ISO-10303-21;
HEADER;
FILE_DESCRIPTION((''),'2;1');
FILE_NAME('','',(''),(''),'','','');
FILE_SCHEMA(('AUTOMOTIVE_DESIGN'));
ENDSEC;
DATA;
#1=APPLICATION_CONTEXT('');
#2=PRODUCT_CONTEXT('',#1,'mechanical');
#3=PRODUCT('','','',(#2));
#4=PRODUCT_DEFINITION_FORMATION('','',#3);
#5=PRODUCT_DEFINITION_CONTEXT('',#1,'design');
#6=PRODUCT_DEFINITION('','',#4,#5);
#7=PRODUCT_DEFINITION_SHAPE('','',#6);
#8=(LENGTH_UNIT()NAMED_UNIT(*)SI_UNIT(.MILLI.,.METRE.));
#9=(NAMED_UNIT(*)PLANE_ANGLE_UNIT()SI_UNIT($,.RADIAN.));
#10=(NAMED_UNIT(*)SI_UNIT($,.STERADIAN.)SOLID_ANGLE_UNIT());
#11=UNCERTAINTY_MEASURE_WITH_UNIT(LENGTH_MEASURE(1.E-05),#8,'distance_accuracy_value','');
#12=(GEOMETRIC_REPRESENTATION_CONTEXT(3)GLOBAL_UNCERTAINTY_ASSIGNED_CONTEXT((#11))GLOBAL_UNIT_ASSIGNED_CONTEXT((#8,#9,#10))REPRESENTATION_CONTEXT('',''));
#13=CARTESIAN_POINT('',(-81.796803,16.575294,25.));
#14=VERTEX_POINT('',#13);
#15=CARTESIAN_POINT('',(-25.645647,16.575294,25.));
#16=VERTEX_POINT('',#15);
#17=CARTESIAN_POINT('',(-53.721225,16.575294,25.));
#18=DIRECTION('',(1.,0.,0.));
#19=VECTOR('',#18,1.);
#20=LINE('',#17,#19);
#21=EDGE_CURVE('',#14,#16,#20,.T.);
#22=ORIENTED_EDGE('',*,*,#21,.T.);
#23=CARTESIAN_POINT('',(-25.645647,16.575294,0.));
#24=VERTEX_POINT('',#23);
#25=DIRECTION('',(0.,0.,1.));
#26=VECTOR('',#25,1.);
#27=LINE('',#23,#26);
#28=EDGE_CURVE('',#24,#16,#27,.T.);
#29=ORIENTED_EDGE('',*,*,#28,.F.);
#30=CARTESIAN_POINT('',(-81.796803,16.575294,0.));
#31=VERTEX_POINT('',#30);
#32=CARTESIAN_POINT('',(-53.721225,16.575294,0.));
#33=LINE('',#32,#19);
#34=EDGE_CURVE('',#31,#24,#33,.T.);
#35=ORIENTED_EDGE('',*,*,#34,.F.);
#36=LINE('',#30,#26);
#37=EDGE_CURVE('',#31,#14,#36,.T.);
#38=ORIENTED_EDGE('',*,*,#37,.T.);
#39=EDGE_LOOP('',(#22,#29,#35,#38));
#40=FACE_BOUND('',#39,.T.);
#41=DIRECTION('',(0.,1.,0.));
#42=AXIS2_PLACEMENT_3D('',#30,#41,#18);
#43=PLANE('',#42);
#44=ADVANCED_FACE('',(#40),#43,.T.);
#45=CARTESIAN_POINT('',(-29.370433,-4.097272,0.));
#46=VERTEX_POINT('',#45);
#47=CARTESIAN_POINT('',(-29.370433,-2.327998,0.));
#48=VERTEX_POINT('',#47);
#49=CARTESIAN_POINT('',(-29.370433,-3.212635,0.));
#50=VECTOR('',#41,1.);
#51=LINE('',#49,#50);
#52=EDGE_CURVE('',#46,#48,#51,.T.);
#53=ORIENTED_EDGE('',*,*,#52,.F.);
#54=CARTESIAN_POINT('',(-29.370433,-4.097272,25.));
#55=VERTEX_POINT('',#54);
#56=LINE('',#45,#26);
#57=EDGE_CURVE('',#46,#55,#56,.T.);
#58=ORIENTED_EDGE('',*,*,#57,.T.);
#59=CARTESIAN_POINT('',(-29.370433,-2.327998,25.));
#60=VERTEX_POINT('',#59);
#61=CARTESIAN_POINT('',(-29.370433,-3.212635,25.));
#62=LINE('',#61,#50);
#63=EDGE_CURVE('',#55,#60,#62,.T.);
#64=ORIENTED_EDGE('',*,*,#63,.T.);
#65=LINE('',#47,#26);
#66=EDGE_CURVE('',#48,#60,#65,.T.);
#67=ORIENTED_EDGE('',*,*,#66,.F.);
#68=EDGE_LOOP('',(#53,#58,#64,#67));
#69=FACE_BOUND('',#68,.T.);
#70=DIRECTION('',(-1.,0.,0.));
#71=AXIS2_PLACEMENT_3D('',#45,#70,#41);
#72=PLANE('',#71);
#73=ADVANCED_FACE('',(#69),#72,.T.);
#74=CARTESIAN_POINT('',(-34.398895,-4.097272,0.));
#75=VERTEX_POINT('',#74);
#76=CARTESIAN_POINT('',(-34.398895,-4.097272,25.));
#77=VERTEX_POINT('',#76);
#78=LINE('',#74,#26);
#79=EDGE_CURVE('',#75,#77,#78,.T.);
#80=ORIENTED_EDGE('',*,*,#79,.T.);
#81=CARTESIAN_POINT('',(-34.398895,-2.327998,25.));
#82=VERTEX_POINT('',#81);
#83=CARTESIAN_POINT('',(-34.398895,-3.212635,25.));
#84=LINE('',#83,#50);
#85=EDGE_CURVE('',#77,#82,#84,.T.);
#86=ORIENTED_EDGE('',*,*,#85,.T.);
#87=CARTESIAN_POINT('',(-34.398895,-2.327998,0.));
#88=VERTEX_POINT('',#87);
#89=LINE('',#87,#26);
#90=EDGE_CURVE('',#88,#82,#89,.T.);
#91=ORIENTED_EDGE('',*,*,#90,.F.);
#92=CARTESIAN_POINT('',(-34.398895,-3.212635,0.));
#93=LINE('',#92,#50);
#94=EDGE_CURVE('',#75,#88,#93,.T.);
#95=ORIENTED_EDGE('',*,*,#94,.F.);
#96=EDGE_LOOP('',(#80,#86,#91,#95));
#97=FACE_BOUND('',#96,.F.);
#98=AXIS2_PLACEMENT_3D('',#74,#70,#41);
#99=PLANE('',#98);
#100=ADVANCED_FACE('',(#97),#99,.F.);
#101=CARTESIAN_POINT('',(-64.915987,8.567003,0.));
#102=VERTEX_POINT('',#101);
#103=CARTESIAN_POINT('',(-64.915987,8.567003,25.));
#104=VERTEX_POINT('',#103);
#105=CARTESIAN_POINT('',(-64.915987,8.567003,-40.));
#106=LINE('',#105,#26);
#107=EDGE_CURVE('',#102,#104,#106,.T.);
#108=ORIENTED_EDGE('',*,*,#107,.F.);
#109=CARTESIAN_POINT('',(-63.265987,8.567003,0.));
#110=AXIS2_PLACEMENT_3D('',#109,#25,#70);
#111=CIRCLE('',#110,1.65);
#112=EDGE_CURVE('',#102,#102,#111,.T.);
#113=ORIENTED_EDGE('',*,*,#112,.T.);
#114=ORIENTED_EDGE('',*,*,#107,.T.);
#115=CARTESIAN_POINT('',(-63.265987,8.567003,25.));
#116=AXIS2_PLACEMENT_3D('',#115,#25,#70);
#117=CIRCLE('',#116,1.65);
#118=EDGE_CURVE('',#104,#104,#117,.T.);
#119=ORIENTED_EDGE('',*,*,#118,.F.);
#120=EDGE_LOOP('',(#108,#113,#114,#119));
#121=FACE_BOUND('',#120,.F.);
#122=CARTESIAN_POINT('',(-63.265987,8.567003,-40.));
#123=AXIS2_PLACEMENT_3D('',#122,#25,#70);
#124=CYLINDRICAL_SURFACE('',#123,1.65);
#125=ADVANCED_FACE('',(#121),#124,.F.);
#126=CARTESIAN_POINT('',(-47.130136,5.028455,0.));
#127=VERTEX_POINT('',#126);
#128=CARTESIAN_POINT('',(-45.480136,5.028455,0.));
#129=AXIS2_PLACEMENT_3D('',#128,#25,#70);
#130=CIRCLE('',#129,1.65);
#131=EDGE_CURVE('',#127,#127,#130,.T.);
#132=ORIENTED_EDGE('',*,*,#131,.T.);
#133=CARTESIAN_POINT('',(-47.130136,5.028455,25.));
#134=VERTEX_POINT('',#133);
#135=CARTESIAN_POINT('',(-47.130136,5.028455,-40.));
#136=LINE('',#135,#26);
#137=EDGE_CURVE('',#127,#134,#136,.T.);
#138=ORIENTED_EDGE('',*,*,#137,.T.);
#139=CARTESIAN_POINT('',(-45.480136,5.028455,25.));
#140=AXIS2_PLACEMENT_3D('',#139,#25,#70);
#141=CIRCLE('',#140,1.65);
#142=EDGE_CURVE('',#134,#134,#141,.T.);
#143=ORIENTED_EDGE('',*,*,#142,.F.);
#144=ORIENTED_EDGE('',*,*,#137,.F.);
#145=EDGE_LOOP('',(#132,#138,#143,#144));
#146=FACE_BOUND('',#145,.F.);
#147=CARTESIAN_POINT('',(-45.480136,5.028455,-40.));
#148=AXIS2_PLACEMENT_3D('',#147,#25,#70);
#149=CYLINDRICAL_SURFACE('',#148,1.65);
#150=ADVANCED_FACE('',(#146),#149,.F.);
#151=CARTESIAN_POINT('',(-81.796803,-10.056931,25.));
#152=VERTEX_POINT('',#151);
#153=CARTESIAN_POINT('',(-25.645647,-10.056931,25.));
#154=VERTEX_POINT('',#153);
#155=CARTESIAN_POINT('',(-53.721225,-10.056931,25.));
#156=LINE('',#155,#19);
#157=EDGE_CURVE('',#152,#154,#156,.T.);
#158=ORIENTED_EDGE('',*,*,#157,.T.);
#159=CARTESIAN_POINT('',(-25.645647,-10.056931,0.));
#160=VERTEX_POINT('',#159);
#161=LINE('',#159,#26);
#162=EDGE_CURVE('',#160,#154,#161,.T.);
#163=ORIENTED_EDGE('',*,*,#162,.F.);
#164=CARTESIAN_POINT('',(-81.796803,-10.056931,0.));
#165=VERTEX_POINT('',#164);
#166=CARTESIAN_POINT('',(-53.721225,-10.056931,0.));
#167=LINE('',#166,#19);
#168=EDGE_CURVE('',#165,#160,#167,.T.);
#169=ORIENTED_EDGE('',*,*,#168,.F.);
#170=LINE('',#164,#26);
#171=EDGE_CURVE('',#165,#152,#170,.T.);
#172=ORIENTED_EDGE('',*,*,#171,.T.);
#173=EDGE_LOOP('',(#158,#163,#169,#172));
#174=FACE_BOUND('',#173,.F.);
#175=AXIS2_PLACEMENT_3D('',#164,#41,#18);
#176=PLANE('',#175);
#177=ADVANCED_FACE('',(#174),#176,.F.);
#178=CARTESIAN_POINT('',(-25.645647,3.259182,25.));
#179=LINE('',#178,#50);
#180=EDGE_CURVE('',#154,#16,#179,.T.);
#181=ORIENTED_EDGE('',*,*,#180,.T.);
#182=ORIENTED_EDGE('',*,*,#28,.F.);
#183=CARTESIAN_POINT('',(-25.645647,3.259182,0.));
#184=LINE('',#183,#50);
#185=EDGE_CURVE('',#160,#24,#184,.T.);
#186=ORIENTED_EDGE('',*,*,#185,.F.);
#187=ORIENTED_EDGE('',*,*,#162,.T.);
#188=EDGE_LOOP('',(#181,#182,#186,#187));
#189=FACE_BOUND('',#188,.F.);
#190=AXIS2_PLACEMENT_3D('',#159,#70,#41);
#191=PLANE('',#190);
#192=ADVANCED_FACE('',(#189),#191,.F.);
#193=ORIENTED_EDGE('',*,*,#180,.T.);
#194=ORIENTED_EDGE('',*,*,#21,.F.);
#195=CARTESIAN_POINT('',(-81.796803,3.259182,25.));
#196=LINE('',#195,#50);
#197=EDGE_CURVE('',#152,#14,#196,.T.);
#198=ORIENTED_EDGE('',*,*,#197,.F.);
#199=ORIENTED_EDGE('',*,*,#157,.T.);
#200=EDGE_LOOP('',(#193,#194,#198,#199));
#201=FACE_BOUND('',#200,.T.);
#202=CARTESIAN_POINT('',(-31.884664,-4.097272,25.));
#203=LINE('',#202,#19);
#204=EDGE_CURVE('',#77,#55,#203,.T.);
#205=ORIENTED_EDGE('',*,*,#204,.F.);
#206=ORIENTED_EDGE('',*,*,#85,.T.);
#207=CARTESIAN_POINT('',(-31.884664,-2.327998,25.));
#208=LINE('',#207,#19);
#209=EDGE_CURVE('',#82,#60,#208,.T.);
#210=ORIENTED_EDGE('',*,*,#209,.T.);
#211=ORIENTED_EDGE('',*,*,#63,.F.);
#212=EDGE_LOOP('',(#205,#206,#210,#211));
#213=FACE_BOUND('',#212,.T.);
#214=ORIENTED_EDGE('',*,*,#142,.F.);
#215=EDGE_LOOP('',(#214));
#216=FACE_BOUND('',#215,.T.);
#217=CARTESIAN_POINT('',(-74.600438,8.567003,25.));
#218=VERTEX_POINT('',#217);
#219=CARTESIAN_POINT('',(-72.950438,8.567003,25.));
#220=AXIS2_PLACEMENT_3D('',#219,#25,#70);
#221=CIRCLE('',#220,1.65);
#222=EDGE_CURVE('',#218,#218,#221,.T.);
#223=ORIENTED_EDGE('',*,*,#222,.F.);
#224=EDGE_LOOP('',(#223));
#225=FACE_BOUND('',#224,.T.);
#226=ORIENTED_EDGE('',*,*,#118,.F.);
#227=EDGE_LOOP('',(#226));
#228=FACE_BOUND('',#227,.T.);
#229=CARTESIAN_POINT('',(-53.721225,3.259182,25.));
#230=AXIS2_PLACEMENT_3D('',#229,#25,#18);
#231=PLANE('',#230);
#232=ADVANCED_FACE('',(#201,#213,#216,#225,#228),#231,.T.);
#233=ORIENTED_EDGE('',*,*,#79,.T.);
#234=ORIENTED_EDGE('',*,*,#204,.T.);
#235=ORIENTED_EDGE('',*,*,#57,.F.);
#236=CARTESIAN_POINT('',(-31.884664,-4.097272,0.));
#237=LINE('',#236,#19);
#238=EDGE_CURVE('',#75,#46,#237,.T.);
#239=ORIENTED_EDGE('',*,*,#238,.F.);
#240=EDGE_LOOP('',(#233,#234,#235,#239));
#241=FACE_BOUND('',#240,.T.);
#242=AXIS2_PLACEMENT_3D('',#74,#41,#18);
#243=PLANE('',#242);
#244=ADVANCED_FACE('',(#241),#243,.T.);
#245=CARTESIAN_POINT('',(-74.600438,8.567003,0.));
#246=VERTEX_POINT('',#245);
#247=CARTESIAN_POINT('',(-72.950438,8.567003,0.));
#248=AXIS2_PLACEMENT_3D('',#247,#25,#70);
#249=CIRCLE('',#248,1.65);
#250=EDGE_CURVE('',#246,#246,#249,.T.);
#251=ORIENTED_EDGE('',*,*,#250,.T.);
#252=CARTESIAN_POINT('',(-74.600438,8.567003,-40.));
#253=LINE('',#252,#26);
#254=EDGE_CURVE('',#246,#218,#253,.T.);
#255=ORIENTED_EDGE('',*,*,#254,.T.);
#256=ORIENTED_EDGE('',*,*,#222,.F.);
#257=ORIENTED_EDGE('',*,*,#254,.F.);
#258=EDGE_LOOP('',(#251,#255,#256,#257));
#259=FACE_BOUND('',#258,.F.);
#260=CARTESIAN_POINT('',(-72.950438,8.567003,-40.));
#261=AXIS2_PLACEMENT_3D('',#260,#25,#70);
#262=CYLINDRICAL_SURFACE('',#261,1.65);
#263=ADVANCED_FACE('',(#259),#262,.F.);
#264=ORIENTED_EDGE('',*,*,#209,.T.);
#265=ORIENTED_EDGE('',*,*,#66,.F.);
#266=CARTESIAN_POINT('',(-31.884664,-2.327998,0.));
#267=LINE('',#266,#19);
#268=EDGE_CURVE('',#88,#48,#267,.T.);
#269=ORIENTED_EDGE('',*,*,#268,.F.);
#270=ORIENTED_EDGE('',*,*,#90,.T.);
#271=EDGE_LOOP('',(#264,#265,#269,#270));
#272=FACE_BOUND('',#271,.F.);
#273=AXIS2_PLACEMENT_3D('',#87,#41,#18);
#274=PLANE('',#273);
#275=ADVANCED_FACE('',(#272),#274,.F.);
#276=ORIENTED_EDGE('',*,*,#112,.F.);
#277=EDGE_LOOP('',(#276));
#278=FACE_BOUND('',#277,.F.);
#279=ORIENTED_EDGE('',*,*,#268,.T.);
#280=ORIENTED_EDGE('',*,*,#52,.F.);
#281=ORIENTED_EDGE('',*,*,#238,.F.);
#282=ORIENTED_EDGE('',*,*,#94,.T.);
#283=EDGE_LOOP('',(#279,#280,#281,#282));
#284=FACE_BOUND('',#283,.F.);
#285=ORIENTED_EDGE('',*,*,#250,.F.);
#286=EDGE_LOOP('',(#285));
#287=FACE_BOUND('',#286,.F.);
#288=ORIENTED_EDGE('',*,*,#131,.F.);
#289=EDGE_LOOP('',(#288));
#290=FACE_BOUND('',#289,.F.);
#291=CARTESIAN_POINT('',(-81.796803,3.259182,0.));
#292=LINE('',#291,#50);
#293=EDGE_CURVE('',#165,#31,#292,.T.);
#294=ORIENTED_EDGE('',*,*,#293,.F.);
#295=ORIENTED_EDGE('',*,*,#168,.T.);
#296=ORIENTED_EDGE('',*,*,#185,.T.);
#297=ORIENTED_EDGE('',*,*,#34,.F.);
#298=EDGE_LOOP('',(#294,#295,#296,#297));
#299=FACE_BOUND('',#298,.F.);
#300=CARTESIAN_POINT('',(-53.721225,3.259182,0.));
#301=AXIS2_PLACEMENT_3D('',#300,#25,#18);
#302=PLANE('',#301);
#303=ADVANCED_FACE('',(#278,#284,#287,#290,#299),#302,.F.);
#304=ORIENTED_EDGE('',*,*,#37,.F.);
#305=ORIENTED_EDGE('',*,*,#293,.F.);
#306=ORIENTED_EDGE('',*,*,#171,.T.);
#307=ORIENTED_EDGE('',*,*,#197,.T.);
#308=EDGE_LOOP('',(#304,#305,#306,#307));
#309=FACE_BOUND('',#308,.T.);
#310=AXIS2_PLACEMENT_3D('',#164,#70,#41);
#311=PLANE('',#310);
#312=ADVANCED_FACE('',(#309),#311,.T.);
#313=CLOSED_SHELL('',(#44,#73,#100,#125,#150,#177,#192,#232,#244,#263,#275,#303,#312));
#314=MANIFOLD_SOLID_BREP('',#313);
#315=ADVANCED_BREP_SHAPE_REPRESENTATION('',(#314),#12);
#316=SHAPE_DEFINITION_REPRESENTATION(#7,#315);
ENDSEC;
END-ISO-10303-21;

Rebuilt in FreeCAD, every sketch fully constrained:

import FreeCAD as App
import Part
import Sketcher
from FreeCAD import Vector
Q = App.Units.Quantity


def add_polygon(sketch, points):
    """Adds a closed chain of lines whose ends are joined by coincident constraints."""
    first, n = sketch.GeometryCount, len(points)
    for a, b in zip(points, points[1:] + points[:1]):
        sketch.addGeometry(Part.LineSegment(App.Vector(*a, 0), App.Vector(*b, 0)), False)
    for i in range(n):
        sketch.addConstraint(Sketcher.Constraint("Coincident", first + i, 2, first + (i + 1) % n, 1))

doc = App.newDocument("Part")
body = doc.addObject("PartDesign::Body", "Body")

sketch1 = body.newObject("Sketcher::SketchObject", "Sketch")
sketch1.AttachmentSupport = (doc.getObject("XY_Plane"), [""])
sketch1.MapMode = "FlatFace"
add_polygon(sketch1, [(-81.796803, 16.575294), (-81.796803, -10.056931), (-25.645647, -10.056931), (-25.645647, 16.575294)])
add_polygon(sketch1, [(-29.370433, -4.097272), (-34.398895, -4.097272), (-34.398895, -2.327998), (-29.370433, -2.327998)])
sketch1.addConstraint([
    Sketcher.Constraint("Vertical", 0),
    Sketcher.Constraint("Horizontal", 1),
    Sketcher.Constraint("Vertical", 2),
    Sketcher.Constraint("Horizontal", 3),
    Sketcher.Constraint("Horizontal", 4),
    Sketcher.Constraint("Vertical", 5),
    Sketcher.Constraint("Horizontal", 6),
    Sketcher.Constraint("Vertical", 7),
    Sketcher.Constraint("DistanceX", 1, 1, 1, 2, Q("56.151155 mm")),
    Sketcher.Constraint("DistanceX", 4, 2, 4, 1, Q("5.028462 mm")),
    Sketcher.Constraint("DistanceY", 0, 2, 0, 1, Q("26.632224 mm")),
    Sketcher.Constraint("DistanceY", 5, 1, 5, 2, Q("1.769274 mm")),
    Sketcher.Constraint("DistanceY", 0, 2, -1, 1, Q("10.056931 mm")),
    Sketcher.Constraint("DistanceY", 1, 2, 4, 2, Q("5.959658 mm")),
    Sketcher.Constraint("DistanceX", 0, 2, 6, 2, Q("52.42637 mm")),
    Sketcher.Constraint("DistanceX", 0, 2, -1, 1, Q("81.796803 mm")),
])
pad1 = body.newObject("PartDesign::Pad", "Pad")
pad1.Profile = sketch1
pad1.Length = 25

sketch2 = body.newObject("Sketcher::SketchObject", "Sketch001")
sketch2.AttachmentSupport = (doc.getObject("XY_Plane"), [""])
sketch2.MapMode = "FlatFace"
sketch2.addGeometry([
    Part.Circle(Vector(-72.950438, 8.567003, 0), Vector(0, 0, 1), 1.65),
    Part.Circle(Vector(-63.265987, 8.567003, 0), Vector(0, 0, 1), 1.65),
    Part.Circle(Vector(-45.480136, 5.028455, 0), Vector(0, 0, 1), 1.65),
], False)
sketch2.addConstraint([
    Sketcher.Constraint("Equal", 0, 1),
    Sketcher.Constraint("Equal", 1, 2),
    Sketcher.Constraint("Horizontal", 0, 3, 1, 3),
    Sketcher.Constraint("Diameter", 0, Q("3.3 mm")),
    Sketcher.Constraint("DistanceX", 0, 3, 2, 3, Q("27.470302 mm")),
    Sketcher.Constraint("DistanceX", 0, 3, 1, 3, Q("9.684451 mm")),
    Sketcher.Constraint("DistanceX", 0, 3, -1, 1, Q("72.950438 mm")),
    Sketcher.Constraint("DistanceY", -1, 1, 0, 3, Q("8.567003 mm")),
    Sketcher.Constraint("DistanceY", -1, 1, 2, 3, Q("5.028455 mm")),
])
doc.recompute()
hole = body.newObject("PartDesign::Hole", "Hole")
hole.Profile = sketch2
hole.ThreadType = "None"
hole.Diameter = 3.3
hole.DepthType = "Dimension"
hole.Depth = 40
hole.DrillPoint = "Angled"
hole.DrillPointAngle = 118
hole.Reversed = True

doc.recompute()
